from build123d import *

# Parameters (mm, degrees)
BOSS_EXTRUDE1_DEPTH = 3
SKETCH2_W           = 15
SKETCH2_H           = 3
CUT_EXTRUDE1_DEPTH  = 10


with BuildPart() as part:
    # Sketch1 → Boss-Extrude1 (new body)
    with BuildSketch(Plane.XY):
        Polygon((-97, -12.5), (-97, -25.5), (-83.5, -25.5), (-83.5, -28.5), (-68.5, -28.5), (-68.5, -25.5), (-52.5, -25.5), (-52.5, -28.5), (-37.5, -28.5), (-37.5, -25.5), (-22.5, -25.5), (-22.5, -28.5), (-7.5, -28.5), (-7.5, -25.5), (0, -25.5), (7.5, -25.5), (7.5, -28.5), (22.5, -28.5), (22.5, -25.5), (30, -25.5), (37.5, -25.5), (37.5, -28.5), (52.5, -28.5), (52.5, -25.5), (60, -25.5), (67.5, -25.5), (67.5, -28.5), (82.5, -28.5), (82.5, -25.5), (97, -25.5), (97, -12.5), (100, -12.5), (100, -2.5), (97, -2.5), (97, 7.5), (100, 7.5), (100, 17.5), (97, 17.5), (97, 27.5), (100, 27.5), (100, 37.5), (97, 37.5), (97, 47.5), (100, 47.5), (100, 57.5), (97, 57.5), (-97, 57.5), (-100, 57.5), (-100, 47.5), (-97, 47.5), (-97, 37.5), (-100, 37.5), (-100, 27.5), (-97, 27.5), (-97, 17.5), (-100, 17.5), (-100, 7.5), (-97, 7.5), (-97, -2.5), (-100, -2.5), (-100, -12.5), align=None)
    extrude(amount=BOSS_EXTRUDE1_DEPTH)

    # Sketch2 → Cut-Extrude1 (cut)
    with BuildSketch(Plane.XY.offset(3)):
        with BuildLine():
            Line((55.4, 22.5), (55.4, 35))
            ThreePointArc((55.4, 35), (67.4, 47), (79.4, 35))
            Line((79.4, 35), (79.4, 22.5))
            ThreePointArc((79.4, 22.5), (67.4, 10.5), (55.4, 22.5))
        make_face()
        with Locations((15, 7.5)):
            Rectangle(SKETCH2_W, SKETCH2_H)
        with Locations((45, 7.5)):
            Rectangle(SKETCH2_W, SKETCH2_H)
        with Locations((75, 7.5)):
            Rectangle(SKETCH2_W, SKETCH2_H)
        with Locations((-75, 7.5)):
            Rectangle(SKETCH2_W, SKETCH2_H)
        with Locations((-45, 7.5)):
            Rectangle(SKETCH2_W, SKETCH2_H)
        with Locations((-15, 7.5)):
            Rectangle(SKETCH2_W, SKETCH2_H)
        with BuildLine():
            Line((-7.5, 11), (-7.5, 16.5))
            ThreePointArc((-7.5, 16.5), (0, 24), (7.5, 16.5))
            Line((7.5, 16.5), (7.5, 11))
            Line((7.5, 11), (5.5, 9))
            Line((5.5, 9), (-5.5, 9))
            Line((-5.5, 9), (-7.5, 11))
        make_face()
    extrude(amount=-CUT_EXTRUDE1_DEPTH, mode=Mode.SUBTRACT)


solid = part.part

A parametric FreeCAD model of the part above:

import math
import FreeCAD as App
import Part
import Sketcher

doc = App.newDocument("Part")
params = doc.addObject("Spreadsheet::Sheet", "Params")
for row, (alias, value) in enumerate([
    ("sketch1_width", "15 mm"),
    ("sketch1_width2", "16 mm"),
    ("sketch1_width3", "3 mm"),
    ("sketch1_width4", "200 mm"),
    ("sketch1_height", "13 mm"),
    ("pad1_length", "3 mm"),
    ("sketch2_radius", "12 mm"),
    ("sketch2_radius2", "7.5 mm"),
    ("sketch2_width", "15 mm"),
    ("sketch2_width2", "11 mm"),
    ("sketch2_height", "3 mm"),
    ("pocket1_length", "10 mm"),
], start=1):
    params.set(f"A{row}", alias)
    params.set(f"B{row}", "=" + value)
    params.setAlias(f"B{row}", alias)

body = doc.addObject("PartDesign::Body", "Body")

# Sketch on XY plane
sketch1 = body.newObject("Sketcher::SketchObject", "Sketch")
sketch1.AttachmentSupport = (doc.getObject("XY_Plane"), [""])
sketch1.MapMode = "FlatFace"
sketch1.addGeometry([
    Part.LineSegment(App.Vector(-97, -12.5, 0), App.Vector(-97, -25.5, 0)),  # 0
    Part.LineSegment(App.Vector(-97, -25.5, 0), App.Vector(-83.5, -25.5, 0)),  # 1
    Part.LineSegment(App.Vector(-83.5, -25.5, 0), App.Vector(-83.5, -28.5, 0)),  # 2
    Part.LineSegment(App.Vector(-83.5, -28.5, 0), App.Vector(-68.5, -28.5, 0)),  # 3
    Part.LineSegment(App.Vector(-68.5, -28.5, 0), App.Vector(-68.5, -25.5, 0)),  # 4
    Part.LineSegment(App.Vector(-68.5, -25.5, 0), App.Vector(-52.5, -25.5, 0)),  # 5
    Part.LineSegment(App.Vector(-52.5, -25.5, 0), App.Vector(-52.5, -28.5, 0)),  # 6
    Part.LineSegment(App.Vector(-52.5, -28.5, 0), App.Vector(-37.5, -28.5, 0)),  # 7
    Part.LineSegment(App.Vector(-37.5, -28.5, 0), App.Vector(-37.5, -25.5, 0)),  # 8
    Part.LineSegment(App.Vector(-37.5, -25.5, 0), App.Vector(-22.5, -25.5, 0)),  # 9
    Part.LineSegment(App.Vector(-22.5, -25.5, 0), App.Vector(-22.5, -28.5, 0)),  # 10
    Part.LineSegment(App.Vector(-22.5, -28.5, 0), App.Vector(-7.5, -28.5, 0)),  # 11
    Part.LineSegment(App.Vector(-7.5, -28.5, 0), App.Vector(-7.5, -25.5, 0)),  # 12
    Part.LineSegment(App.Vector(-7.5, -25.5, 0), App.Vector(7.5, -25.5, 0)),  # 13
    Part.LineSegment(App.Vector(7.5, -25.5, 0), App.Vector(7.5, -28.5, 0)),  # 14
    Part.LineSegment(App.Vector(7.5, -28.5, 0), App.Vector(22.5, -28.5, 0)),  # 15
    Part.LineSegment(App.Vector(22.5, -28.5, 0), App.Vector(22.5, -25.5, 0)),  # 16
    Part.LineSegment(App.Vector(22.5, -25.5, 0), App.Vector(37.5, -25.5, 0)),  # 17
    Part.LineSegment(App.Vector(37.5, -25.5, 0), App.Vector(37.5, -28.5, 0)),  # 18
    Part.LineSegment(App.Vector(37.5, -28.5, 0), App.Vector(52.5, -28.5, 0)),  # 19
    Part.LineSegment(App.Vector(52.5, -28.5, 0), App.Vector(52.5, -25.5, 0)),  # 20
    Part.LineSegment(App.Vector(52.5, -25.5, 0), App.Vector(67.5, -25.5, 0)),  # 21
    Part.LineSegment(App.Vector(67.5, -25.5, 0), App.Vector(67.5, -28.5, 0)),  # 22
    Part.LineSegment(App.Vector(67.5, -28.5, 0), App.Vector(82.5, -28.5, 0)),  # 23
    Part.LineSegment(App.Vector(82.5, -28.5, 0), App.Vector(82.5, -25.5, 0)),  # 24
    Part.LineSegment(App.Vector(82.5, -25.5, 0), App.Vector(97, -25.5, 0)),  # 25
    Part.LineSegment(App.Vector(97, -25.5, 0), App.Vector(97, -12.5, 0)),  # 26
    Part.LineSegment(App.Vector(97, -12.5, 0), App.Vector(100, -12.5, 0)),  # 27
    Part.LineSegment(App.Vector(100, -12.5, 0), App.Vector(100, -2.5, 0)),  # 28
    Part.LineSegment(App.Vector(100, -2.5, 0), App.Vector(97, -2.5, 0)),  # 29
    Part.LineSegment(App.Vector(97, -2.5, 0), App.Vector(97, 7.5, 0)),  # 30
    Part.LineSegment(App.Vector(97, 7.5, 0), App.Vector(100, 7.5, 0)),  # 31
    Part.LineSegment(App.Vector(100, 7.5, 0), App.Vector(100, 17.5, 0)),  # 32
    Part.LineSegment(App.Vector(100, 17.5, 0), App.Vector(97, 17.5, 0)),  # 33
    Part.LineSegment(App.Vector(97, 17.5, 0), App.Vector(97, 27.5, 0)),  # 34
    Part.LineSegment(App.Vector(97, 27.5, 0), App.Vector(100, 27.5, 0)),  # 35
    Part.LineSegment(App.Vector(100, 27.5, 0), App.Vector(100, 37.5, 0)),  # 36
    Part.LineSegment(App.Vector(100, 37.5, 0), App.Vector(97, 37.5, 0)),  # 37
    Part.LineSegment(App.Vector(97, 37.5, 0), App.Vector(97, 47.5, 0)),  # 38
    Part.LineSegment(App.Vector(97, 47.5, 0), App.Vector(100, 47.5, 0)),  # 39
    Part.LineSegment(App.Vector(100, 47.5, 0), App.Vector(100, 57.5, 0)),  # 40
    Part.LineSegment(App.Vector(100, 57.5, 0), App.Vector(-100, 57.5, 0)),  # 41
    Part.LineSegment(App.Vector(-100, 57.5, 0), App.Vector(-100, 47.5, 0)),  # 42
    Part.LineSegment(App.Vector(-100, 47.5, 0), App.Vector(-97, 47.5, 0)),  # 43
    Part.LineSegment(App.Vector(-97, 47.5, 0), App.Vector(-97, 37.5, 0)),  # 44
    Part.LineSegment(App.Vector(-97, 37.5, 0), App.Vector(-100, 37.5, 0)),  # 45
    Part.LineSegment(App.Vector(-100, 37.5, 0), App.Vector(-100, 27.5, 0)),  # 46
    Part.LineSegment(App.Vector(-100, 27.5, 0), App.Vector(-97, 27.5, 0)),  # 47
    Part.LineSegment(App.Vector(-97, 27.5, 0), App.Vector(-97, 17.5, 0)),  # 48
    Part.LineSegment(App.Vector(-97, 17.5, 0), App.Vector(-100, 17.5, 0)),  # 49
    Part.LineSegment(App.Vector(-100, 17.5, 0), App.Vector(-100, 7.5, 0)),  # 50
    Part.LineSegment(App.Vector(-100, 7.5, 0), App.Vector(-97, 7.5, 0)),  # 51
    Part.LineSegment(App.Vector(-97, 7.5, 0), App.Vector(-97, -2.5, 0)),  # 52
    Part.LineSegment(App.Vector(-97, -2.5, 0), App.Vector(-100, -2.5, 0)),  # 53
    Part.LineSegment(App.Vector(-100, -2.5, 0), App.Vector(-100, -12.5, 0)),  # 54
    Part.LineSegment(App.Vector(-100, -12.5, 0), App.Vector(-97, -12.5, 0)),  # 55
], False)
sketch1.addConstraint([
    Sketcher.Constraint("Coincident", 0, 2, 1, 1),
    Sketcher.Constraint("Coincident", 1, 2, 2, 1),
    Sketcher.Constraint("Coincident", 2, 2, 3, 1),
    Sketcher.Constraint("Coincident", 3, 2, 4, 1),
    Sketcher.Constraint("Coincident", 4, 2, 5, 1),
    Sketcher.Constraint("Coincident", 5, 2, 6, 1),
    Sketcher.Constraint("Coincident", 6, 2, 7, 1),
    Sketcher.Constraint("Coincident", 7, 2, 8, 1),
    Sketcher.Constraint("Coincident", 8, 2, 9, 1),
    Sketcher.Constraint("Coincident", 9, 2, 10, 1),
    Sketcher.Constraint("Coincident", 10, 2, 11, 1),
    Sketcher.Constraint("Coincident", 11, 2, 12, 1),
    Sketcher.Constraint("Coincident", 12, 2, 13, 1),
    Sketcher.Constraint("Coincident", 13, 2, 14, 1),
    Sketcher.Constraint("Coincident", 14, 2, 15, 1),
    Sketcher.Constraint("Coincident", 15, 2, 16, 1),
    Sketcher.Constraint("Coincident", 16, 2, 17, 1),
    Sketcher.Constraint("Coincident", 17, 2, 18, 1),
    Sketcher.Constraint("Coincident", 18, 2, 19, 1),
    Sketcher.Constraint("Coincident", 19, 2, 20, 1),
    Sketcher.Constraint("Coincident", 20, 2, 21, 1),
    Sketcher.Constraint("Coincident", 21, 2, 22, 1),
    Sketcher.Constraint("Coincident", 22, 2, 23, 1),
    Sketcher.Constraint("Coincident", 23, 2, 24, 1),
    Sketcher.Constraint("Coincident", 24, 2, 25, 1),
    Sketcher.Constraint("Coincident", 25, 2, 26, 1),
    Sketcher.Constraint("Coincident", 26, 2, 27, 1),
    Sketcher.Constraint("Coincident", 27, 2, 28, 1),
    Sketcher.Constraint("Coincident", 28, 2, 29, 1),
    Sketcher.Constraint("Coincident", 29, 2, 30, 1),
    Sketcher.Constraint("Coincident", 30, 2, 31, 1),
    Sketcher.Constraint("Coincident", 31, 2, 32, 1),
    Sketcher.Constraint("Coincident", 32, 2, 33, 1),
    Sketcher.Constraint("Coincident", 33, 2, 34, 1),
    Sketcher.Constraint("Coincident", 34, 2, 35, 1),
    Sketcher.Constraint("Coincident", 35, 2, 36, 1),
    Sketcher.Constraint("Coincident", 36, 2, 37, 1),
    Sketcher.Constraint("Coincident", 37, 2, 38, 1),
    Sketcher.Constraint("Coincident", 38, 2, 39, 1),
    Sketcher.Constraint("Coincident", 39, 2, 40, 1),
    Sketcher.Constraint("Coincident", 40, 2, 41, 1),
    Sketcher.Constraint("Coincident", 41, 2, 42, 1),
    Sketcher.Constraint("Coincident", 42, 2, 43, 1),
    Sketcher.Constraint("Coincident", 43, 2, 44, 1),
    Sketcher.Constraint("Coincident", 44, 2, 45, 1),
    Sketcher.Constraint("Coincident", 45, 2, 46, 1),
    Sketcher.Constraint("Coincident", 46, 2, 47, 1),
    Sketcher.Constraint("Coincident", 47, 2, 48, 1),
    Sketcher.Constraint("Coincident", 48, 2, 49, 1),
    Sketcher.Constraint("Coincident", 49, 2, 50, 1),
    Sketcher.Constraint("Coincident", 50, 2, 51, 1),
    Sketcher.Constraint("Coincident", 51, 2, 52, 1),
    Sketcher.Constraint("Coincident", 52, 2, 53, 1),
    Sketcher.Constraint("Coincident", 53, 2, 54, 1),
    Sketcher.Constraint("Coincident", 54, 2, 55, 1),
    Sketcher.Constraint("Coincident", 55, 2, 0, 1),
    Sketcher.Constraint("Vertical", 0),
    Sketcher.Constraint("Horizontal", 1),
    Sketcher.Constraint("Vertical", 2),
    Sketcher.Constraint("Horizontal", 3),
    Sketcher.Constraint("Vertical", 4),
    Sketcher.Constraint("Horizontal", 5),
    Sketcher.Constraint("Vertical", 6),
    Sketcher.Constraint("Horizontal", 7),
    Sketcher.Constraint("Vertical", 8),
    Sketcher.Constraint("Horizontal", 9),
    Sketcher.Constraint("Vertical", 10),
    Sketcher.Constraint("Horizontal", 11),
    Sketcher.Constraint("Vertical", 12),
    Sketcher.Constraint("Horizontal", 13),
    Sketcher.Constraint("Vertical", 14),
    Sketcher.Constraint("Horizontal", 15),
    Sketcher.Constraint("Vertical", 16),
    Sketcher.Constraint("Horizontal", 17),
    Sketcher.Constraint("Vertical", 18),
    Sketcher.Constraint("Horizontal", 19),
    Sketcher.Constraint("Vertical", 20),
    Sketcher.Constraint("Horizontal", 21),
    Sketcher.Constraint("Vertical", 22),
    Sketcher.Constraint("Horizontal", 23),
    Sketcher.Constraint("Vertical", 24),
    Sketcher.Constraint("Horizontal", 25),
    Sketcher.Constraint("Vertical", 26),
    Sketcher.Constraint("Horizontal", 27),
    Sketcher.Constraint("Vertical", 28),
    Sketcher.Constraint("Horizontal", 29),
    Sketcher.Constraint("Vertical", 30),
    Sketcher.Constraint("Horizontal", 31),
    Sketcher.Constraint("Vertical", 32),
    Sketcher.Constraint("Horizontal", 33),
    Sketcher.Constraint("Vertical", 34),
    Sketcher.Constraint("Horizontal", 35),
    Sketcher.Constraint("Vertical", 36),
    Sketcher.Constraint("Horizontal", 37),
    Sketcher.Constraint("Vertical", 38),
    Sketcher.Constraint("Horizontal", 39),
    Sketcher.Constraint("Vertical", 40),
    Sketcher.Constraint("Horizontal", 41),
    Sketcher.Constraint("Vertical", 42),
    Sketcher.Constraint("Horizontal", 43),
    Sketcher.Constraint("Vertical", 44),
    Sketcher.Constraint("Horizontal", 45),
    Sketcher.Constraint("Vertical", 46),
    Sketcher.Constraint("Horizontal", 47),
    Sketcher.Constraint("Vertical", 48),
    Sketcher.Constraint("Horizontal", 49),
    Sketcher.Constraint("Vertical", 50),
    Sketcher.Constraint("Horizontal", 51),
    Sketcher.Constraint("Vertical", 52),
    Sketcher.Constraint("Horizontal", 53),
    Sketcher.Constraint("Vertical", 54),
    Sketcher.Constraint("Horizontal", 55),
    Sketcher.Constraint("Symmetric", 11, 2, 14, 2, -2),
    Sketcher.Constraint("Symmetric", 9, 2, 16, 2, -2),
    Sketcher.Constraint("Symmetric", 7, 2, 18, 2, -2),
    Sketcher.Constraint("Symmetric", 5, 2, 20, 2, -2),
    Sketcher.Constraint("Symmetric", 0, 2, 25, 2, -2),
    Sketcher.Constraint("Symmetric", 39, 2, 42, 2, -2),
    Sketcher.Constraint("Symmetric", 37, 2, 44, 2, -2),
    Sketcher.Constraint("Symmetric", 35, 2, 46, 2, -2),
    Sketcher.Constraint("Symmetric", 33, 2, 48, 2, -2),
    Sketcher.Constraint("Symmetric", 31, 2, 50, 2, -2),
    Sketcher.Constraint("Symmetric", 29, 2, 52, 2, -2),
    Sketcher.Constraint("Symmetric", 27, 2, 54, 2, -2),
    Sketcher.Constraint("Horizontal", 1, 2, 4, 2),
    Sketcher.Constraint("Horizontal", 3, 2, 6, 2),
    Sketcher.Constraint("Horizontal", 5, 2, 8, 2),
    Sketcher.Constraint("Horizontal", 7, 2, 10, 2),
    Sketcher.Constraint("Horizontal", 9, 2, 12, 2),
    Sketcher.Constraint("Horizontal", 19, 2, 22, 2),
    Sketcher.Constraint("Vertical", 26, 2, 29, 2),
    Sketcher.Constraint("Vertical", 28, 2, 31, 2),
    Sketcher.Constraint("Vertical", 30, 2, 33, 2),
    Sketcher.Constraint("Vertical", 32, 2, 35, 2),
    Sketcher.Constraint("Vertical", 34, 2, 37, 2),
    Sketcher.Constraint("Vertical", 36, 2, 39, 2),
    Sketcher.Constraint("Equal", 3, 7),
    Sketcher.Constraint("Equal", 7, 9),
    Sketcher.Constraint("Equal", 9, 11),
    Sketcher.Constraint("Equal", 11, 13),
    Sketcher.Constraint("Equal", 19, 21),
    Sketcher.Constraint("Equal", 21, 23),
    Sketcher.Constraint("Equal", 55, 2),
    Sketcher.Constraint("Equal", 28, 30),
    Sketcher.Constraint("Equal", 30, 32),
    Sketcher.Constraint("Equal", 32, 34),
    Sketcher.Constraint("Equal", 34, 36),
    Sketcher.Constraint("Equal", 36, 38),
    Sketcher.Constraint("Equal", 38, 40),
    Sketcher.Constraint("DistanceX", 3, 1, 3, 2, 15.0),
    Sketcher.Constraint("DistanceX", 5, 1, 5, 2, 16.0),
    Sketcher.Constraint("DistanceX", 27, 1, 27, 2, 3.0),
    Sketcher.Constraint("DistanceX", 41, 2, 41, 1, 200.0),
    Sketcher.Constraint("DistanceY", 0, 2, 0, 1, 13.0),
    Sketcher.Constraint("DistanceY", 28, 1, 28, 2, 10.0),
    Sketcher.Constraint("DistanceY", 0, 2, -1, 1, 25.5),
])
sketch1.setExpression("Constraints[149]", "Params.sketch1_width")
sketch1.setExpression("Constraints[150]", "Params.sketch1_width2")
sketch1.setExpression("Constraints[151]", "Params.sketch1_width3")
sketch1.setExpression("Constraints[152]", "Params.sketch1_width4")
sketch1.setExpression("Constraints[153]", "Params.sketch1_height")
pad1 = body.newObject("PartDesign::Pad", "Pad")
pad1.Profile = sketch1
pad1.setExpression("Length", "Params.pad1_length")

# Sketch on XY plane
sketch2 = body.newObject("Sketcher::SketchObject", "Sketch001")
sketch2.AttachmentSupport = (doc.getObject("XY_Plane"), [""])
sketch2.MapMode = "FlatFace"
sketch2.AttachmentOffset = App.Placement(App.Vector(0, 0, 3), App.Rotation())
sketch2.addGeometry([
    Part.LineSegment(App.Vector(55.4, 35, 0), App.Vector(55.4, 22.5, 0)),  # 0
    Part.ArcOfCircle(Part.Circle(App.Vector(67.4, 22.5, 0), App.Vector(0, 0, 1), 12), math.radians(180), math.radians(360)),  # 1
    Part.LineSegment(App.Vector(79.4, 22.5, 0), App.Vector(79.4, 35, 0)),  # 2
    Part.ArcOfCircle(Part.Circle(App.Vector(67.4, 35, 0), App.Vector(0, 0, 1), 12), math.radians(0), math.radians(180)),  # 3
    Part.LineSegment(App.Vector(7.5, 9, 0), App.Vector(7.5, 6, 0)),  # 4
    Part.LineSegment(App.Vector(7.5, 6, 0), App.Vector(22.5, 6, 0)),  # 5
    Part.LineSegment(App.Vector(22.5, 6, 0), App.Vector(22.5, 9, 0)),  # 6
    Part.LineSegment(App.Vector(22.5, 9, 0), App.Vector(7.5, 9, 0)),  # 7
    Part.LineSegment(App.Vector(37.5, 9, 0), App.Vector(37.5, 6, 0)),  # 8
    Part.LineSegment(App.Vector(37.5, 6, 0), App.Vector(52.5, 6, 0)),  # 9
    Part.LineSegment(App.Vector(52.5, 6, 0), App.Vector(52.5, 9, 0)),  # 10
    Part.LineSegment(App.Vector(52.5, 9, 0), App.Vector(37.5, 9, 0)),  # 11
    Part.LineSegment(App.Vector(67.5, 9, 0), App.Vector(67.5, 6, 0)),  # 12
    Part.LineSegment(App.Vector(67.5, 6, 0), App.Vector(82.5, 6, 0)),  # 13
    Part.LineSegment(App.Vector(82.5, 6, 0), App.Vector(82.5, 9, 0)),  # 14
    Part.LineSegment(App.Vector(82.5, 9, 0), App.Vector(67.5, 9, 0)),  # 15
    Part.LineSegment(App.Vector(-82.5, 9, 0), App.Vector(-82.5, 6, 0)),  # 16
    Part.LineSegment(App.Vector(-82.5, 6, 0), App.Vector(-67.5, 6, 0)),  # 17
    Part.LineSegment(App.Vector(-67.5, 6, 0), App.Vector(-67.5, 9, 0)),  # 18
    Part.LineSegment(App.Vector(-67.5, 9, 0), App.Vector(-82.5, 9, 0)),  # 19
    Part.LineSegment(App.Vector(-52.5, 9, 0), App.Vector(-52.5, 6, 0)),  # 20
    Part.LineSegment(App.Vector(-52.5, 6, 0), App.Vector(-37.5, 6, 0)),  # 21
    Part.LineSegment(App.Vector(-37.5, 6, 0), App.Vector(-37.5, 9, 0)),  # 22
    Part.LineSegment(App.Vector(-37.5, 9, 0), App.Vector(-52.5, 9, 0)),  # 23
    Part.LineSegment(App.Vector(-22.5, 9, 0), App.Vector(-22.5, 6, 0)),  # 24
    Part.LineSegment(App.Vector(-22.5, 6, 0), App.Vector(-7.5, 6, 0)),  # 25
    Part.LineSegment(App.Vector(-7.5, 6, 0), App.Vector(-7.5, 9, 0)),  # 26
    Part.LineSegment(App.Vector(-7.5, 9, 0), App.Vector(-22.5, 9, 0)),  # 27
    Part.LineSegment(App.Vector(-7.5, 16.5, 0), App.Vector(-7.5, 11, 0)),  # 28
    Part.LineSegment(App.Vector(-7.5, 11, 0), App.Vector(-5.5, 9, 0)),  # 29
    Part.LineSegment(App.Vector(-5.5, 9, 0), App.Vector(5.5, 9, 0)),  # 30
    Part.LineSegment(App.Vector(5.5, 9, 0), App.Vector(7.5, 11, 0)),  # 31
    Part.LineSegment(App.Vector(7.5, 11, 0), App.Vector(7.5, 16.5, 0)),  # 32
    Part.ArcOfCircle(Part.Circle(App.Vector(0, 16.5, 0), App.Vector(0, 0, 1), 7.5), math.radians(0), math.radians(180)),  # 33
], False)
sketch2.addConstraint([
    Sketcher.Constraint("Tangent", 0, 2, 1, 1),
    Sketcher.Constraint("Tangent", 1, 2, 2, 1),
    Sketcher.Constraint("Tangent", 2, 2, 3, 1),
    Sketcher.Constraint("Tangent", 3, 2, 0, 1),
    Sketcher.Constraint("Coincident", 4, 2, 5, 1),
    Sketcher.Constraint("Coincident", 5, 2, 6, 1),
    Sketcher.Constraint("Coincident", 6, 2, 7, 1),
    Sketcher.Constraint("Coincident", 7, 2, 4, 1),
    Sketcher.Constraint("Coincident", 8, 2, 9, 1),
    Sketcher.Constraint("Coincident", 9, 2, 10, 1),
    Sketcher.Constraint("Coincident", 10, 2, 11, 1),
    Sketcher.Constraint("Coincident", 11, 2, 8, 1),
    Sketcher.Constraint("Coincident", 12, 2, 13, 1),
    Sketcher.Constraint("Coincident", 13, 2, 14, 1),
    Sketcher.Constraint("Coincident", 14, 2, 15, 1),
    Sketcher.Constraint("Coincident", 15, 2, 12, 1),
    Sketcher.Constraint("Coincident", 16, 2, 17, 1),
    Sketcher.Constraint("Coincident", 17, 2, 18, 1),
    Sketcher.Constraint("Coincident", 18, 2, 19, 1),
    Sketcher.Constraint("Coincident", 19, 2, 16, 1),
    Sketcher.Constraint("Coincident", 20, 2, 21, 1),
    Sketcher.Constraint("Coincident", 21, 2, 22, 1),
    Sketcher.Constraint("Coincident", 22, 2, 23, 1),
    Sketcher.Constraint("Coincident", 23, 2, 20, 1),
    Sketcher.Constraint("Coincident", 24, 2, 25, 1),
    Sketcher.Constraint("Coincident", 25, 2, 26, 1),
    Sketcher.Constraint("Coincident", 26, 2, 27, 1),
    Sketcher.Constraint("Coincident", 27, 2, 24, 1),
    Sketcher.Constraint("Coincident", 28, 2, 29, 1),
    Sketcher.Constraint("Coincident", 29, 2, 30, 1),
    Sketcher.Constraint("Coincident", 30, 2, 31, 1),
    Sketcher.Constraint("Coincident", 31, 2, 32, 1),
    Sketcher.Constraint("Tangent", 32, 2, 33, 1),
    Sketcher.Constraint("Tangent", 33, 2, 28, 1),
    Sketcher.Constraint("Vertical", 0),
    Sketcher.Constraint("Vertical", 2),
    Sketcher.Constraint("Vertical", 4),
    Sketcher.Constraint("Horizontal", 5),
    Sketcher.Constraint("Vertical", 6),
    Sketcher.Constraint("Horizontal", 7),
    Sketcher.Constraint("Vertical", 8),
    Sketcher.Constraint("Horizontal", 9),
    Sketcher.Constraint("Vertical", 10),
    Sketcher.Constraint("Horizontal", 11),
    Sketcher.Constraint("Vertical", 12),
    Sketcher.Constraint("Horizontal", 13),
    Sketcher.Constraint("Vertical", 14),
    Sketcher.Constraint("Horizontal", 15),
    Sketcher.Constraint("Vertical", 16),
    Sketcher.Constraint("Horizontal", 17),
    Sketcher.Constraint("Vertical", 18),
    Sketcher.Constraint("Horizontal", 19),
    Sketcher.Constraint("Vertical", 20),
    Sketcher.Constraint("Horizontal", 21),
    Sketcher.Constraint("Vertical", 22),
    Sketcher.Constraint("Horizontal", 23),
    Sketcher.Constraint("Vertical", 24),
    Sketcher.Constraint("Horizontal", 25),
    Sketcher.Constraint("Vertical", 26),
    Sketcher.Constraint("Horizontal", 27),
    Sketcher.Constraint("Vertical", 28),
    Sketcher.Constraint("Horizontal", 30),
    Sketcher.Constraint("Vertical", 32),
    Sketcher.Constraint("Symmetric", 13, 2, 16, 2, -2),
    Sketcher.Constraint("Symmetric", 15, 2, 18, 2, -2),
    Sketcher.Constraint("Symmetric", 9, 2, 20, 2, -2),
    Sketcher.Constraint("Symmetric", 11, 2, 22, 2, -2),
    Sketcher.Constraint("Symmetric", 5, 2, 24, 2, -2),
    Sketcher.Constraint("Symmetric", 7, 2, 26, 2, -2),
    Sketcher.Constraint("Symmetric", 28, 2, 31, 2, -2),
    Sketcher.Constraint("Perpendicular", 29, 31),
    Sketcher.Constraint("Horizontal", 5, 2, 8, 2),
    Sketcher.Constraint("Horizontal", 7, 2, 10, 2),
    Sketcher.Constraint("Horizontal", 9, 2, 12, 2),
    Sketcher.Constraint("Horizontal", 11, 2, 14, 2),
    Sketcher.Constraint("Horizontal", 27, 2, 29, 2),
    Sketcher.Constraint("Vertical", 26, 2, 28, 2),
    Sketcher.Constraint("Equal", 7, 9),
    Sketcher.Constraint("Equal", 11, 13),
    Sketcher.Constraint("Equal", 29, 31),
    Sketcher.Constraint("Radius", 1, 12.0),
    Sketcher.Constraint("Radius", 33, 7.5),
    Sketcher.Constraint("DistanceX", 5, 1, 5, 2, 15.0),
    Sketcher.Constraint("DistanceX", 30, 1, 30, 2, 11.0),
    Sketcher.Constraint("DistanceY", 4, 2, 4, 1, 3.0),
    Sketcher.Constraint("DistanceY", 0, 2, 0, 1, 12.5),
    Sketcher.Constraint("DistanceY", 28, 2, 28, 1, 5.5),
    Sketcher.Constraint("DistanceY", -1, 1, 3, 3, 35.0),
    Sketcher.Constraint("DistanceY", -1, 1, 4, 2, 6.0),
    Sketcher.Constraint("DistanceX", 5, 2, 8, 2, 15.0),
    Sketcher.Constraint("DistanceX", 9, 2, 12, 2, 15.0),
    Sketcher.Constraint("DistanceX", -1, 1, 1, 3, 67.4),
])
sketch2.setExpression("Constraints[80]", "Params.sketch2_radius")
sketch2.setExpression("Constraints[81]", "Params.sketch2_radius2")
sketch2.setExpression("Constraints[82]", "Params.sketch2_width")
sketch2.setExpression("Constraints[83]", "Params.sketch2_width2")
sketch2.setExpression("Constraints[84]", "Params.sketch2_height")
pocket1 = body.newObject("PartDesign::Pocket", "Pocket")
pocket1.Profile = sketch2
pocket1.setExpression("Length", "Params.pocket1_length")

doc.recompute()
